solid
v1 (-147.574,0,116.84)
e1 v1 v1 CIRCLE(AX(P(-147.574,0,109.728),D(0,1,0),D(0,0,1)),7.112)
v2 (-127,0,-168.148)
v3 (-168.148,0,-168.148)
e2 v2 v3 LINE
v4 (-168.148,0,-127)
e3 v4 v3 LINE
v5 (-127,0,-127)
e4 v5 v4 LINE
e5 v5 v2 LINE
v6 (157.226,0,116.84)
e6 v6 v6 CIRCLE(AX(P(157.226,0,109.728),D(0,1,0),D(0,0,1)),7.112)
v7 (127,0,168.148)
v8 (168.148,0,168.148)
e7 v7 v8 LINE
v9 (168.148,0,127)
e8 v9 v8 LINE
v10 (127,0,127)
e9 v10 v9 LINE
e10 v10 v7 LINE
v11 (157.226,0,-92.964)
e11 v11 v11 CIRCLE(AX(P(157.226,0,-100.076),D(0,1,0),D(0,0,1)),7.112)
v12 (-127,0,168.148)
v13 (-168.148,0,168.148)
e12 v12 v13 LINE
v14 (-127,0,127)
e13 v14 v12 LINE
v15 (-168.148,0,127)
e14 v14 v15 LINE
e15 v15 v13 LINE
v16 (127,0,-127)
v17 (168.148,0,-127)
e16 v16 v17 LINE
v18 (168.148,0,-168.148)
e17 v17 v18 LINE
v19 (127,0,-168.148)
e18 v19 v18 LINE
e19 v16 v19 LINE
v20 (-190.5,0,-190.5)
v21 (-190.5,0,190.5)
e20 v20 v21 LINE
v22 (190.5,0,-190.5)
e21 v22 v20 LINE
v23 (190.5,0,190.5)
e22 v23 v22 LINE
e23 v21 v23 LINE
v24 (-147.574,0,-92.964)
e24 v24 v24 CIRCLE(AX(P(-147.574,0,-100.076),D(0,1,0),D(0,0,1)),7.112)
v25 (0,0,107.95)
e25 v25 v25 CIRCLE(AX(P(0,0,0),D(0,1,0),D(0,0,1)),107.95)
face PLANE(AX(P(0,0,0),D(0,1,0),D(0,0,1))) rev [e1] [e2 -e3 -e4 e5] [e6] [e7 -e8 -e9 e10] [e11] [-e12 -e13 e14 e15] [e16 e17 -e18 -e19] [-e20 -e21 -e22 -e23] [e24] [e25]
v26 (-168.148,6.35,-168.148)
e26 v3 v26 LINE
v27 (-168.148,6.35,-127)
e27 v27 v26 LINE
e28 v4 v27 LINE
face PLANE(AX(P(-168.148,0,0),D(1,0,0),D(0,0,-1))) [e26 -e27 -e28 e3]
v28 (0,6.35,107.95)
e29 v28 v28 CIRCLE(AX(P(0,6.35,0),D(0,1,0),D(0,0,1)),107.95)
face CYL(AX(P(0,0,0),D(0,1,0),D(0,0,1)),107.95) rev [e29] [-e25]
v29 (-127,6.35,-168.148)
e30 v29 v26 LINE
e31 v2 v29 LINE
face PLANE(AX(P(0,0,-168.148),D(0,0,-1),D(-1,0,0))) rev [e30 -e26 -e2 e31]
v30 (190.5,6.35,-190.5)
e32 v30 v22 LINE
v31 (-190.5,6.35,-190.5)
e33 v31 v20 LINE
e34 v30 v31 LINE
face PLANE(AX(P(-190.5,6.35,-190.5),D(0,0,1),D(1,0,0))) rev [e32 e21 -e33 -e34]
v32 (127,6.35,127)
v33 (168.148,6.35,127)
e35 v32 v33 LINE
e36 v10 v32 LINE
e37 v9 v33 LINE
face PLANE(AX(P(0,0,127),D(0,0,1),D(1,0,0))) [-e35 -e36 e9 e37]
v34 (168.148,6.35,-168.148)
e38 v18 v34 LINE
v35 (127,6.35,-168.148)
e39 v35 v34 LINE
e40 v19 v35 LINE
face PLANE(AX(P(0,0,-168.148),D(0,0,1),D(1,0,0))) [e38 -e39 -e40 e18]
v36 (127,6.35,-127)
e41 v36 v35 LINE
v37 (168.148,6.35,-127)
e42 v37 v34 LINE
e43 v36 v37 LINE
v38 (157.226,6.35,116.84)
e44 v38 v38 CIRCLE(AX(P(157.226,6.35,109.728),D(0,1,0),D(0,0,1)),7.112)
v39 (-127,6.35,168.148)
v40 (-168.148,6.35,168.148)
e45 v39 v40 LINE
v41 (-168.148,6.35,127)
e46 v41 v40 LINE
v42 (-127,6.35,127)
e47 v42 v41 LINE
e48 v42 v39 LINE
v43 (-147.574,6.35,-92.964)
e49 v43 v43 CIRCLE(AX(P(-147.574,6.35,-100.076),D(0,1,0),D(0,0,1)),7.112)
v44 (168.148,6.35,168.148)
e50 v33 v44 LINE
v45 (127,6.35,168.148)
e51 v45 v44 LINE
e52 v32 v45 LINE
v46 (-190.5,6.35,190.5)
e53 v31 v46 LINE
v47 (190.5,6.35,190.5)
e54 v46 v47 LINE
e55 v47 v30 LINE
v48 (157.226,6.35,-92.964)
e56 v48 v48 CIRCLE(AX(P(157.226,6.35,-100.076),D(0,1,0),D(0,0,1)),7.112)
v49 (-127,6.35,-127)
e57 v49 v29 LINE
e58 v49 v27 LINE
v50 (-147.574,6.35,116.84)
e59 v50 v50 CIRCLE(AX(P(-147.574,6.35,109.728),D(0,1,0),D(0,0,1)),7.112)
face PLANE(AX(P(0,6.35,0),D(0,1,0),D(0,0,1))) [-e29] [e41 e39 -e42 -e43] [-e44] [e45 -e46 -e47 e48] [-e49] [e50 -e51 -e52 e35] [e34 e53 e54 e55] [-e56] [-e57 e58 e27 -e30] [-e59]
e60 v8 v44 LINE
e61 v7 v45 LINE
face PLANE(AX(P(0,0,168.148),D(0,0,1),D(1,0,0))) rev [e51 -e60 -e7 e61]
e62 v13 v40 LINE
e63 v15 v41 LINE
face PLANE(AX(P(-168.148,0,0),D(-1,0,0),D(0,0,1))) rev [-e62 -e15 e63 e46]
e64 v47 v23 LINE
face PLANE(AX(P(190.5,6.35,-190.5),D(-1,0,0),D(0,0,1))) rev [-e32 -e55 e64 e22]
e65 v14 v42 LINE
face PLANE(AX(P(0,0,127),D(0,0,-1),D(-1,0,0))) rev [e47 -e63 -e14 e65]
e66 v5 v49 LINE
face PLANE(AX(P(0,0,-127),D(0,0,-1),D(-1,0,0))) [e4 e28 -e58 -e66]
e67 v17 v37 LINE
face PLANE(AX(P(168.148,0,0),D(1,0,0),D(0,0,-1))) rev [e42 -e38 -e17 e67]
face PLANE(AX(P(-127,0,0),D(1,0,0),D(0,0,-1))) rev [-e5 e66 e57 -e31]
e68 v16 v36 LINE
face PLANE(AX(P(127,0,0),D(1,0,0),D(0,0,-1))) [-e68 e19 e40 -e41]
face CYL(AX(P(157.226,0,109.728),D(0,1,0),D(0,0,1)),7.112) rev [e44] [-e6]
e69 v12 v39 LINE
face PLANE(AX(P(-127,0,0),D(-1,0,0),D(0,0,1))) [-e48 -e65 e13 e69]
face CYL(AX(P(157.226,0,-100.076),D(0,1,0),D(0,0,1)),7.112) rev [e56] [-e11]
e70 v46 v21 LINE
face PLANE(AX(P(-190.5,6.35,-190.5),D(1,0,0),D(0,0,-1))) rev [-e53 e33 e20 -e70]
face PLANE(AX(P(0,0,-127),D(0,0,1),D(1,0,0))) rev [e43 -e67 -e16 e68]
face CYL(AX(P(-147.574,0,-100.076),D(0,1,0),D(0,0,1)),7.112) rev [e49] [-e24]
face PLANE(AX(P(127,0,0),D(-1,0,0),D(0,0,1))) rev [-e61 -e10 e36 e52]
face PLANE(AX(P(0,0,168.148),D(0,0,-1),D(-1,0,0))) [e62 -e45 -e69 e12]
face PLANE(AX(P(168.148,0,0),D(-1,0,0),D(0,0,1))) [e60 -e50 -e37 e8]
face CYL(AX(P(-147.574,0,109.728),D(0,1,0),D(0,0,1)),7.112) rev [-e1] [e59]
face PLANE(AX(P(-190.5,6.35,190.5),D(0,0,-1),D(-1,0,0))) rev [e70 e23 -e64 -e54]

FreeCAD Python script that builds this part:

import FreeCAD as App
import Part
import Sketcher
Q = App.Units.Quantity

doc = App.newDocument("Part")
body = doc.addObject("PartDesign::Body", "Body")

sketch1 = doc.addObject("Sketcher::SketchObject", "Sketch")
body.addObject(sketch1)
sketch1.AttachmentSupport = (doc.XZ_Plane, [""])
sketch1.MapMode = "FlatFace"
sketch1.addGeometry(Part.LineSegment(App.Vector(-190, -190, 0), App.Vector(-190, 190, 0)), False)
sketch1.addGeometry(Part.LineSegment(App.Vector(-190, 190, 0), App.Vector(190, 190, 0)), False)
sketch1.addGeometry(Part.LineSegment(App.Vector(190, 190, 0), App.Vector(190, -190, 0)), False)
sketch1.addGeometry(Part.LineSegment(App.Vector(190, -190, 0), App.Vector(-190, -190, 0)), False)
sketch1.addConstraint(Sketcher.Constraint("Coincident", 0, 2, 1, 1))
sketch1.addConstraint(Sketcher.Constraint("Coincident", 1, 2, 2, 1))
sketch1.addConstraint(Sketcher.Constraint("Coincident", 2, 2, 3, 1))
sketch1.addConstraint(Sketcher.Constraint("Coincident", 3, 2, 0, 1))
sketch1.addConstraint(Sketcher.Constraint("Vertical", 0))
sketch1.addConstraint(Sketcher.Constraint("Horizontal", 1))
sketch1.addConstraint(Sketcher.Constraint("Vertical", 2))
sketch1.addConstraint(Sketcher.Constraint("Horizontal", 3))
sketch1.addConstraint(Sketcher.Constraint("Symmetric", 0, 2, 2, 2, -1, 1))
sketch1.addConstraint(Sketcher.Constraint("Equal", 3, 0))
sketch1.addConstraint(Sketcher.Constraint("DistanceX", 1, 1, 1, 2, Q("15 in")))
pad1 = doc.addObject("PartDesign::Pad", "Pad")
body.addObject(pad1)
pad1.Profile = sketch1
pad1.Length = Q("0.25 in")
pad1.Reversed = True

sketch2 = doc.addObject("Sketcher::SketchObject", "Sketch001")
body.addObject(sketch2)
sketch2.AttachmentSupport = (doc.XZ_Plane, [""])
sketch2.MapMode = "FlatFace"
sketch2.AttachmentOffset = App.Placement(App.Vector(0, 0, -0.25 * 25.4), App.Rotation())
sketch2.addGeometry(Part.Circle(App.Vector(0, 0, 0), App.Vector(0, 0, 1), 108), False)
sketch2.addConstraint(Sketcher.Constraint("Coincident", 0, 3, -1, 1))
sketch2.addConstraint(Sketcher.Constraint("Diameter", 0, Q("8.5 in")))
pocket1 = doc.addObject("PartDesign::Pocket", "Pocket")
body.addObject(pocket1)
pocket1.Profile = sketch2
pocket1.Length = Q("0.25 in")
pocket1.Reversed = True

sketch3 = doc.addObject("Sketcher::SketchObject", "Sketch002")
body.addObject(sketch3)
sketch3.AttachmentSupport = (doc.XZ_Plane, [""])
sketch3.MapMode = "FlatFace"
sketch3.AttachmentOffset = App.Placement(App.Vector(0, 0, -0.25 * 25.4), App.Rotation())
sketch3.addGeometry(Part.LineSegment(App.Vector(-168, -168, 0), App.Vector(-168, -127, 0)), False)
sketch3.addGeometry(Part.LineSegment(App.Vector(-168, -127, 0), App.Vector(-127, -127, 0)), False)
sketch3.addGeometry(Part.LineSegment(App.Vector(-127, -127, 0), App.Vector(-127, -168, 0)), False)
sketch3.addGeometry(Part.LineSegment(App.Vector(-127, -168, 0), App.Vector(-168, -168, 0)), False)
sketch3.addGeometry(Part.LineSegment(App.Vector(127, -168, 0), App.Vector(127, -127, 0)), False)
sketch3.addGeometry(Part.LineSegment(App.Vector(127, -127, 0), App.Vector(168, -127, 0)), False)
sketch3.addGeometry(Part.LineSegment(App.Vector(168, -127, 0), App.Vector(168, -168, 0)), False)
sketch3.addGeometry(Part.LineSegment(App.Vector(168, -168, 0), App.Vector(127, -168, 0)), False)
sketch3.addGeometry(Part.LineSegment(App.Vector(127, 127, 0), App.Vector(127, 168, 0)), False)
sketch3.addGeometry(Part.LineSegment(App.Vector(127, 168, 0), App.Vector(168, 168, 0)), False)
sketch3.addGeometry(Part.LineSegment(App.Vector(168, 168, 0), App.Vector(168, 127, 0)), False)
sketch3.addGeometry(Part.LineSegment(App.Vector(168, 127, 0), App.Vector(127, 127, 0)), False)
sketch3.addGeometry(Part.LineSegment(App.Vector(-168, 127, 0), App.Vector(-168, 168, 0)), False)
sketch3.addGeometry(Part.LineSegment(App.Vector(-168, 168, 0), App.Vector(-127, 168, 0)), False)
sketch3.addGeometry(Part.LineSegment(App.Vector(-127, 168, 0), App.Vector(-127, 127, 0)), False)
sketch3.addGeometry(Part.LineSegment(App.Vector(-127, 127, 0), App.Vector(-168, 127, 0)), False)
sketch3.addConstraint(Sketcher.Constraint("Coincident", 0, 2, 1, 1))
sketch3.addConstraint(Sketcher.Constraint("Coincident", 1, 2, 2, 1))
sketch3.addConstraint(Sketcher.Constraint("Coincident", 2, 2, 3, 1))
sketch3.addConstraint(Sketcher.Constraint("Coincident", 3, 2, 0, 1))
sketch3.addConstraint(Sketcher.Constraint("Coincident", 4, 2, 5, 1))
sketch3.addConstraint(Sketcher.Constraint("Coincident", 5, 2, 6, 1))
sketch3.addConstraint(Sketcher.Constraint("Coincident", 6, 2, 7, 1))
sketch3.addConstraint(Sketcher.Constraint("Coincident", 7, 2, 4, 1))
sketch3.addConstraint(Sketcher.Constraint("Coincident", 8, 2, 9, 1))
sketch3.addConstraint(Sketcher.Constraint("Coincident", 9, 2, 10, 1))
sketch3.addConstraint(Sketcher.Constraint("Coincident", 10, 2, 11, 1))
sketch3.addConstraint(Sketcher.Constraint("Coincident", 11, 2, 8, 1))
sketch3.addConstraint(Sketcher.Constraint("Coincident", 12, 2, 13, 1))
sketch3.addConstraint(Sketcher.Constraint("Coincident", 13, 2, 14, 1))
sketch3.addConstraint(Sketcher.Constraint("Coincident", 14, 2, 15, 1))
sketch3.addConstraint(Sketcher.Constraint("Coincident", 15, 2, 12, 1))
sketch3.addConstraint(Sketcher.Constraint("Vertical", 0))
sketch3.addConstraint(Sketcher.Constraint("Horizontal", 1))
sketch3.addConstraint(Sketcher.Constraint("Vertical", 2))
sketch3.addConstraint(Sketcher.Constraint("Horizontal", 3))
sketch3.addConstraint(Sketcher.Constraint("Vertical", 4))
sketch3.addConstraint(Sketcher.Constraint("Horizontal", 5))
sketch3.addConstraint(Sketcher.Constraint("Vertical", 6))
sketch3.addConstraint(Sketcher.Constraint("Horizontal", 7))
sketch3.addConstraint(Sketcher.Constraint("Vertical", 8))
sketch3.addConstraint(Sketcher.Constraint("Horizontal", 9))
sketch3.addConstraint(Sketcher.Constraint("Vertical", 10))
sketch3.addConstraint(Sketcher.Constraint("Horizontal", 11))
sketch3.addConstraint(Sketcher.Constraint("Vertical", 12))
sketch3.addConstraint(Sketcher.Constraint("Horizontal", 13))
sketch3.addConstraint(Sketcher.Constraint("Vertical", 14))
sketch3.addConstraint(Sketcher.Constraint("Horizontal", 15))
sketch3.addConstraint(Sketcher.Constraint("Symmetric", 2, 2, 8, 2, -1, 1))
sketch3.addConstraint(Sketcher.Constraint("Symmetric", 0, 2, 10, 2, -1, 1))
sketch3.addConstraint(Sketcher.Constraint("Symmetric", 6, 2, 12, 2, -1, 1))
sketch3.addConstraint(Sketcher.Constraint("Symmetric", 4, 2, 14, 2, -1, 1))
sketch3.addConstraint(Sketcher.Constraint("Symmetric", 1, 2, 4, 2, -2))
sketch3.addConstraint(Sketcher.Constraint("Symmetric", 3, 2, 6, 2, -2))
sketch3.addConstraint(Sketcher.Constraint("Equal", 15, 0))
sketch3.addConstraint(Sketcher.Constraint("DistanceY", 0, 2, -1, 1, Q("5 in")))
sketch3.addConstraint(Sketcher.Constraint("DistanceX", 1, 2, -1, 1, Q("5 in")))
sketch3.addConstraint(Sketcher.Constraint("DistanceX", 1, 1, 1, 2, Q("1.62 in")))
pocket2 = doc.addObject("PartDesign::Pocket", "Pocket001")
body.addObject(pocket2)
pocket2.Profile = sketch3
pocket2.Length = Q("0.25 in")
pocket2.Reversed = True

sketch4 = doc.addObject("Sketcher::SketchObject", "Sketch003")
body.addObject(sketch4)
sketch4.AttachmentSupport = (doc.XZ_Plane, [""])
sketch4.MapMode = "FlatFace"
sketch4.AttachmentOffset = App.Placement(App.Vector(0, 0, -0.25 * 25.4), App.Rotation())
sketch4.addGeometry(Part.Circle(App.Vector(157, -100, 0), App.Vector(0, 0, 1), 7), False)
sketch4.addGeometry(Part.Circle(App.Vector(-148, 110, 0), App.Vector(0, 0, 1), 7), False)
sketch4.addGeometry(Part.Circle(App.Vector(-148, -100, 0), App.Vector(0, 0, 1), 7), False)
sketch4.addGeometry(Part.Circle(App.Vector(157, 110, 0), App.Vector(0, 0, 1), 7), False)
sketch4.addConstraint(Sketcher.Constraint("Equal", 0, 1))
sketch4.addConstraint(Sketcher.Constraint("Equal", 1, 2))
sketch4.addConstraint(Sketcher.Constraint("Equal", 2, 3))
sketch4.addConstraint(Sketcher.Constraint("Horizontal", 0, 3, 2, 3))
sketch4.addConstraint(Sketcher.Constraint("Horizontal", 1, 3, 3, 3))
sketch4.addConstraint(Sketcher.Constraint("Vertical", 1, 3, 2, 3))
sketch4.addConstraint(Sketcher.Constraint("Vertical", 0, 3, 3, 3))
sketch4.addConstraint(Sketcher.Constraint("Diameter", 0, Q("0.56 in")))
sketch4.addConstraint(Sketcher.Constraint("DistanceX", 1, 3, 0, 3, Q("12 in")))
sketch4.addConstraint(Sketcher.Constraint("DistanceX", -1, 1, 0, 3, Q("6.19 in")))
sketch4.addConstraint(Sketcher.Constraint("DistanceY", 0, 3, -1, 1, Q("3.94 in")))
sketch4.addConstraint(Sketcher.Constraint("DistanceY", -1, 1, 1, 3, Q("4.32 in")))
pocket3 = doc.addObject("PartDesign::Pocket", "Pocket002")
body.addObject(pocket3)
pocket3.Profile = sketch4
pocket3.Type = "ThroughAll"
pocket3.Reversed = True

doc.recompute()
